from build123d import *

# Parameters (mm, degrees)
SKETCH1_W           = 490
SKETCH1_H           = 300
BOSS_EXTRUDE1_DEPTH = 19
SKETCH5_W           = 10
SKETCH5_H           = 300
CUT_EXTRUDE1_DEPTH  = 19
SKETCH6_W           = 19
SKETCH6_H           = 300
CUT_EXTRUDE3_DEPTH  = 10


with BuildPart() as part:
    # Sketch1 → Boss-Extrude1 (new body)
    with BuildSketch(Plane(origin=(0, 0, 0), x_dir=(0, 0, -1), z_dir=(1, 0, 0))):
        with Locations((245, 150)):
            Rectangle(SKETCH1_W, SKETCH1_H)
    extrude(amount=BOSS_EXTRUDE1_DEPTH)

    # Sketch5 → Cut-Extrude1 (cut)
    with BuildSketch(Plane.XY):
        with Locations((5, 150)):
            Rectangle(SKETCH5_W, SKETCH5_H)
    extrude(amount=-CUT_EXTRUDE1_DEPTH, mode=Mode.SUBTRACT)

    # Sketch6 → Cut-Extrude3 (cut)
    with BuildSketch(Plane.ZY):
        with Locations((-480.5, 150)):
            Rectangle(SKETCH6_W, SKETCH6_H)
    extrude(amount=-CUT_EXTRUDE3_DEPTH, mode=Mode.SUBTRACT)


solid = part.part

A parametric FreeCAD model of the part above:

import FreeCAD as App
import Part
import Sketcher
Q = App.Units.Quantity


def add_polygon(sketch, points):
    """Adds a closed chain of lines whose ends are joined by coincident constraints."""
    first, n = sketch.GeometryCount, len(points)
    for a, b in zip(points, points[1:] + points[:1]):
        sketch.addGeometry(Part.LineSegment(App.Vector(*a, 0), App.Vector(*b, 0)), False)
    for i in range(n):
        sketch.addConstraint(Sketcher.Constraint("Coincident", first + i, 2, first + (i + 1) % n, 1))

doc = App.newDocument("Part")
params = doc.addObject("Spreadsheet::Sheet", "Params")
for row, (alias, value) in enumerate([
    ("sketch1_width", "300 mm"),
    ("sketch1_height", "490 mm"),
    ("pad1_length", "19 mm"),
    ("sketch2_width", "10 mm"),
    ("sketch2_height", "300 mm"),
    ("pocket1_length", "19 mm"),
    ("sketch3_width", "300 mm"),
    ("sketch3_height", "19 mm"),
    ("pocket2_length", "10 mm"),
], start=1):
    params.set(f"A{row}", alias)
    params.set(f"B{row}", "=" + value)
    params.setAlias(f"B{row}", alias)

body = doc.addObject("PartDesign::Body", "Body")

# Sketch on YZ plane
sketch1 = body.newObject("Sketcher::SketchObject", "Sketch")
sketch1.AttachmentSupport = (doc.getObject("YZ_Plane"), [""])
sketch1.MapMode = "FlatFace"
add_polygon(sketch1, [(300, 0), (0, 0), (0, -490), (300, -490)])  # lines 0-3
sketch1.addConstraint([
    Sketcher.Constraint("Horizontal", 0),
    Sketcher.Constraint("Vertical", 1),
    Sketcher.Constraint("Horizontal", 2),
    Sketcher.Constraint("Vertical", 3),
    Sketcher.Constraint("Coincident", 0, 2, -1, 1),
    Sketcher.Constraint("DistanceX", 0, 2, 0, 1, Q("300 mm")),
    Sketcher.Constraint("DistanceY", 1, 2, 1, 1, Q("490 mm")),
])
sketch1.setExpression("Constraints[9]", "Params.sketch1_width")
sketch1.setExpression("Constraints[10]", "Params.sketch1_height")
pad1 = body.newObject("PartDesign::Pad", "Pad")
pad1.Profile = sketch1
pad1.setExpression("Length", "Params.pad1_length")

# Sketch on XY plane
sketch2 = body.newObject("Sketcher::SketchObject", "Sketch001")
sketch2.AttachmentSupport = (doc.getObject("XY_Plane"), [""])
sketch2.MapMode = "FlatFace"
add_polygon(sketch2, [(0, 300), (0, 0), (10, 0), (10, 300)])  # lines 0-3
sketch2.addConstraint([
    Sketcher.Constraint("Vertical", 0),
    Sketcher.Constraint("Horizontal", 1),
    Sketcher.Constraint("Vertical", 2),
    Sketcher.Constraint("Horizontal", 3),
    Sketcher.Constraint("Coincident", 0, 2, -1, 1),
    Sketcher.Constraint("DistanceX", 1, 1, 1, 2, Q("10 mm")),
    Sketcher.Constraint("DistanceY", 0, 2, 0, 1, Q("300 mm")),
])
sketch2.setExpression("Constraints[9]", "Params.sketch2_width")
sketch2.setExpression("Constraints[10]", "Params.sketch2_height")
pocket1 = body.newObject("PartDesign::Pocket", "Pocket")
pocket1.Profile = sketch2
pocket1.setExpression("Length", "Params.pocket1_length")

# Sketch on YZ plane
sketch3 = body.newObject("Sketcher::SketchObject", "Sketch002")
sketch3.AttachmentSupport = (doc.getObject("YZ_Plane"), [""])
sketch3.MapMode = "FlatFace"
add_polygon(sketch3, [(300, -490), (0, -490), (0, -471), (300, -471)])  # lines 0-3
sketch3.addConstraint([
    Sketcher.Constraint("Horizontal", 0),
    Sketcher.Constraint("Vertical", 1),
    Sketcher.Constraint("Horizontal", 2),
    Sketcher.Constraint("Vertical", 3),
    Sketcher.Constraint("PointOnObject", 0, 2, -2),
    Sketcher.Constraint("DistanceX", 0, 2, 0, 1, Q("300 mm")),
    Sketcher.Constraint("DistanceY", 1, 1, 1, 2, Q("19 mm")),
    Sketcher.Constraint("DistanceY", 0, 2, -1, 1, Q("490 mm")),
])
sketch3.setExpression("Constraints[9]", "Params.sketch3_width")
sketch3.setExpression("Constraints[10]", "Params.sketch3_height")
pocket2 = body.newObject("PartDesign::Pocket", "Pocket001")
pocket2.Profile = sketch3
pocket2.setExpression("Length", "Params.pocket2_length")
pocket2.Reversed = True

doc.recompute()
